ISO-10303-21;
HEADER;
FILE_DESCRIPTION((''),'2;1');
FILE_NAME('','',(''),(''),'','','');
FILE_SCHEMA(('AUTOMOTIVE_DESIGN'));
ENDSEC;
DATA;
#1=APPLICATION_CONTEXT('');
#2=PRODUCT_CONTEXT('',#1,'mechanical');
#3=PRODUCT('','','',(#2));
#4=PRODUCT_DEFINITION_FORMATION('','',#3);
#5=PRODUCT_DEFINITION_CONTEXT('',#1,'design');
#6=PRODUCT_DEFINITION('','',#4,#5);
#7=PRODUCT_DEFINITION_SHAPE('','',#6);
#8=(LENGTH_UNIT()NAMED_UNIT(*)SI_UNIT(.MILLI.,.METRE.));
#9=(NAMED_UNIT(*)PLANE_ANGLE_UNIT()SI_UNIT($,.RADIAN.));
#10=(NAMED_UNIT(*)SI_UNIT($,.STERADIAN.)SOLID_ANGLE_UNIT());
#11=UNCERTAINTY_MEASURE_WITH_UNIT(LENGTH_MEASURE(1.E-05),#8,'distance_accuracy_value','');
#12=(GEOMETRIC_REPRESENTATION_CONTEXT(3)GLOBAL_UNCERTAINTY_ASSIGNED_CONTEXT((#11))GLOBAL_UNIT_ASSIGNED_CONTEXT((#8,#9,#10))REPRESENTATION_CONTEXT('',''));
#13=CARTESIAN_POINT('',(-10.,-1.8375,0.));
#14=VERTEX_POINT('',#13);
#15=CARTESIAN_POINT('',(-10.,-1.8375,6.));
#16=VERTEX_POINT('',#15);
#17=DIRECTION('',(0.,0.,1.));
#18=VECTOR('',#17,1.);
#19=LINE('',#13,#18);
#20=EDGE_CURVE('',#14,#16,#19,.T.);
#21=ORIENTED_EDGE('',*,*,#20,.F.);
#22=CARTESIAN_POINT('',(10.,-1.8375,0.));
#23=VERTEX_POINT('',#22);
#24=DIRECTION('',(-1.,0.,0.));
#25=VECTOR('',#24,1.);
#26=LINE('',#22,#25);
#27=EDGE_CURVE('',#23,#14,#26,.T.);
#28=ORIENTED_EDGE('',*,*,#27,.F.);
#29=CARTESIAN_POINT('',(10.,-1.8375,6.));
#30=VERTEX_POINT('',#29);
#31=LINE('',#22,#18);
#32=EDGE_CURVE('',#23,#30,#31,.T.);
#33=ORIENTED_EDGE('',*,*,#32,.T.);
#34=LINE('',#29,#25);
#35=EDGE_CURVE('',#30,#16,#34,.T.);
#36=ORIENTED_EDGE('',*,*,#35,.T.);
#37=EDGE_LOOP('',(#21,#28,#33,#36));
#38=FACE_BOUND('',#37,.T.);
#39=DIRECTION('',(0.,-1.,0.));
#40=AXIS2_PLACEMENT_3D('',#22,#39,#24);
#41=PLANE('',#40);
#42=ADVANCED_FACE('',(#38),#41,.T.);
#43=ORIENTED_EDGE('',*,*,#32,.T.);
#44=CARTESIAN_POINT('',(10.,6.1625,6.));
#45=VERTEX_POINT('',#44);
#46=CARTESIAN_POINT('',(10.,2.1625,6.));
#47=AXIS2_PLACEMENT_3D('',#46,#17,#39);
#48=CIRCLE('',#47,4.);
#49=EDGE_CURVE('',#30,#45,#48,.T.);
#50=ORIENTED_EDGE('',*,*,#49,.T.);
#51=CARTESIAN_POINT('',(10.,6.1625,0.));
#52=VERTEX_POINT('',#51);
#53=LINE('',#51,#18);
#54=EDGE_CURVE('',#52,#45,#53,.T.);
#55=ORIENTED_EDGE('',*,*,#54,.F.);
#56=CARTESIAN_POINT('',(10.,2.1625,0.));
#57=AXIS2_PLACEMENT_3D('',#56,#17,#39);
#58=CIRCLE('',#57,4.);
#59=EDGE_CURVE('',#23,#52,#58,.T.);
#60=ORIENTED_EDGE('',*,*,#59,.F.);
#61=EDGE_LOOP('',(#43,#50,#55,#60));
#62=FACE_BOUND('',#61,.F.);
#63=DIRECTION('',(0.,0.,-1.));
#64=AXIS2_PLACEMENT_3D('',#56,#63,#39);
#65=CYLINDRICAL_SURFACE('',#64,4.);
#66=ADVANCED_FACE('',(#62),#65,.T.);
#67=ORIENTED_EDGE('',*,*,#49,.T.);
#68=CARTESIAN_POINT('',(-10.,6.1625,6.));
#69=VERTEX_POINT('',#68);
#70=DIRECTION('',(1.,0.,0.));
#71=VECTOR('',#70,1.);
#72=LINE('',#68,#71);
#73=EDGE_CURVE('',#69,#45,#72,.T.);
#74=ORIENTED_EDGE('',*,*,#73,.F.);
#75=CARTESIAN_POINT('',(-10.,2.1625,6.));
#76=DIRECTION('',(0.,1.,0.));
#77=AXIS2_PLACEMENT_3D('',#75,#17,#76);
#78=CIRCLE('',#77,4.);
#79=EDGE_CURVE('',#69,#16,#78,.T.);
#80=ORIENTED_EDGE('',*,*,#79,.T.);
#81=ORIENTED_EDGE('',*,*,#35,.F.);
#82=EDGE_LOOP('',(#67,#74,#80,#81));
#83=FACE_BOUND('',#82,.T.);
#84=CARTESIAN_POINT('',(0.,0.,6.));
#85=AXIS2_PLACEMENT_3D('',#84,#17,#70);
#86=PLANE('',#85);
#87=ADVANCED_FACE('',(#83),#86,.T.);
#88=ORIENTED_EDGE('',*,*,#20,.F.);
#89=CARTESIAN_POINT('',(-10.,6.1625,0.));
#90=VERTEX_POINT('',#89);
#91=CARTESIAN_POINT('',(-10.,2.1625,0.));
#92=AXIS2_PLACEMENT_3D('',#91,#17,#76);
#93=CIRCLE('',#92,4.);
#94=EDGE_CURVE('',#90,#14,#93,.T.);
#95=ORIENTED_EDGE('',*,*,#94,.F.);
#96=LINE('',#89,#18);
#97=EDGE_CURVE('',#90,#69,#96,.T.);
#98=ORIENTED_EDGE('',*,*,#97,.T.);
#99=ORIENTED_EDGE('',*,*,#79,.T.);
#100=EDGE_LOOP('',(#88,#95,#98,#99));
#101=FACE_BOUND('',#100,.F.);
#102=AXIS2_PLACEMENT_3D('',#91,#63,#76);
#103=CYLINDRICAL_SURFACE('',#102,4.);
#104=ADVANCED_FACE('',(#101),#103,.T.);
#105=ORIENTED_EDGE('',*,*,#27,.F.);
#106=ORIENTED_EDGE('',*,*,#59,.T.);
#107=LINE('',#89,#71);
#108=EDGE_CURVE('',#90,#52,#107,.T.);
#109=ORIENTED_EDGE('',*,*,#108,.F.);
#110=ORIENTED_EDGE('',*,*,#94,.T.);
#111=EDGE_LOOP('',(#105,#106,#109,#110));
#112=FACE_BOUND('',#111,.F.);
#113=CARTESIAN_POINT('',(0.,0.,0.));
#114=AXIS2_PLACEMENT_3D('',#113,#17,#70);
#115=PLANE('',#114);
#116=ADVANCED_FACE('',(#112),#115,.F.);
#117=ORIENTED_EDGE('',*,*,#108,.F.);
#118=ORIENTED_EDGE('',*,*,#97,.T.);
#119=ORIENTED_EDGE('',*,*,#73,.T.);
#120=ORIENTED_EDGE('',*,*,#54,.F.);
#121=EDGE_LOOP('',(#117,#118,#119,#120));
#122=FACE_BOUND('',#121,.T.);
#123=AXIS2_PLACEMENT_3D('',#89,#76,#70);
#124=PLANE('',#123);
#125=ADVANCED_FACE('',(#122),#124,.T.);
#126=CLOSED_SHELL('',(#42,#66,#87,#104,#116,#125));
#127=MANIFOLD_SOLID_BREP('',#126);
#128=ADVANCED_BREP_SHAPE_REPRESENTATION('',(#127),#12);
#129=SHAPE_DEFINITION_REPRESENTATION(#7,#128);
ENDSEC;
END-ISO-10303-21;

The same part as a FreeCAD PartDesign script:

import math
import FreeCAD as App
import Part
import Sketcher

V = App.Vector
Q = App.Units.Quantity

doc = App.newDocument("Part")
body = doc.addObject("PartDesign::Body", "Body")

sketch1 = doc.addObject("Sketcher::SketchObject", "Sketch")
body.addObject(sketch1)
sketch1.AttachmentSupport = (doc.XY_Plane, [""])
sketch1.MapMode = "FlatFace"
sketch1.addGeometry([
    Part.LineSegment(V(-10, -1.8, 0), V(10, -1.8, 0)),
    Part.ArcOfCircle(Part.Circle(V(10, 2.2, 0), V(0, 0, 1), 4), math.radians(-90), math.radians(90)),
    Part.LineSegment(V(10, 6.2, 0), V(-10, 6.2, 0)),
    Part.ArcOfCircle(Part.Circle(V(-10, 2.2, 0), V(0, 0, 1), 4), math.radians(90), math.radians(270)),
], False)
sketch1.addConstraint([
    Sketcher.Constraint("Tangent", 0, 2, 1, 1),
    Sketcher.Constraint("Tangent", 1, 2, 2, 1),
    Sketcher.Constraint("Tangent", 2, 2, 3, 1),
    Sketcher.Constraint("Tangent", 3, 2, 0, 1),
    Sketcher.Constraint("Horizontal", 0),
    Sketcher.Constraint("Horizontal", 2),
    Sketcher.Constraint("Radius", 1, Q("4 mm")),
    Sketcher.Constraint("DistanceX", 0, 1, 0, 2, Q("20 mm")),
    Sketcher.Constraint("DistanceX", -1, 1, 1, 3, Q("10 mm")),
    Sketcher.Constraint("DistanceY", -1, 1, 1, 3, Q("2.1625 mm")),
])
pad1 = doc.addObject("PartDesign::Pad", "Pad")
body.addObject(pad1)
pad1.Profile = sketch1
pad1.Length = 6

doc.recompute()
